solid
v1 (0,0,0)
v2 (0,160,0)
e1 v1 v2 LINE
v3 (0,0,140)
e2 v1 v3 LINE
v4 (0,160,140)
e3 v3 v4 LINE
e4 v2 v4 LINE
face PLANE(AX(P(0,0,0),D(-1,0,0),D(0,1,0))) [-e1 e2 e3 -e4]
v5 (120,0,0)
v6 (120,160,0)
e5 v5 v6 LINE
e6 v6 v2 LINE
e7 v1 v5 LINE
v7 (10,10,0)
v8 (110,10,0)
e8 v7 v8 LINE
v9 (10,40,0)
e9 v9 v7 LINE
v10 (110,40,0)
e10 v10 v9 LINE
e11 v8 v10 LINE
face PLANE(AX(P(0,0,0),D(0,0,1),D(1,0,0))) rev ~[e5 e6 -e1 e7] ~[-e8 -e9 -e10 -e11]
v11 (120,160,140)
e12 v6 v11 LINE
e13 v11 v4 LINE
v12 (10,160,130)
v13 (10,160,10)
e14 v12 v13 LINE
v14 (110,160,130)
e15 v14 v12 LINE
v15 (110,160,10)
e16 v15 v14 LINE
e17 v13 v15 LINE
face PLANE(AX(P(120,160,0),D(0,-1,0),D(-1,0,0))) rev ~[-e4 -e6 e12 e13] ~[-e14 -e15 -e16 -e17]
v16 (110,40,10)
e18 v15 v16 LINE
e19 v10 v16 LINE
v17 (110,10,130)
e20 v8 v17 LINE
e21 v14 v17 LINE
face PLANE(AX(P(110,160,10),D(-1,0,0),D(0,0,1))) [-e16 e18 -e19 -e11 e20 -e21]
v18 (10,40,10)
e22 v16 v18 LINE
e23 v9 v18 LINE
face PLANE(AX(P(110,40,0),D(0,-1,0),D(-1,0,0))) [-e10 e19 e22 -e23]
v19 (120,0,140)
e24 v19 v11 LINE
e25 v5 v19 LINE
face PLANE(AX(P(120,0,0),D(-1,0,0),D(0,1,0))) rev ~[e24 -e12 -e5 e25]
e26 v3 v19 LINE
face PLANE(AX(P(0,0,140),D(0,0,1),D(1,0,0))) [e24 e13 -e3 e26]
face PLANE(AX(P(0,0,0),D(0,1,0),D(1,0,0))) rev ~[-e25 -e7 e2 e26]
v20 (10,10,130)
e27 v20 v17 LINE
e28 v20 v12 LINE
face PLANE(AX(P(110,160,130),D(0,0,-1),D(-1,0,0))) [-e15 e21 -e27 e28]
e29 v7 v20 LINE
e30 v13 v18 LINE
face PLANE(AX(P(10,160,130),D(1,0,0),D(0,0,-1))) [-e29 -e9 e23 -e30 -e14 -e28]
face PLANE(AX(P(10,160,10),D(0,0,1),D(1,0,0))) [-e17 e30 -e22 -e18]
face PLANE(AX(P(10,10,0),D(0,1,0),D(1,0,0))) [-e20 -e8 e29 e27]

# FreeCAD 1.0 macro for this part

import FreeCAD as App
import Part
import Sketcher
Q = App.Units.Quantity


def add_polygon(sketch, points):
    """Adds a closed chain of lines whose ends are joined by coincident constraints."""
    first, n = sketch.GeometryCount, len(points)
    for a, b in zip(points, points[1:] + points[:1]):
        sketch.addGeometry(Part.LineSegment(App.Vector(*a, 0), App.Vector(*b, 0)), False)
    for i in range(n):
        sketch.addConstraint(Sketcher.Constraint("Coincident", first + i, 2, first + (i + 1) % n, 1))

doc = App.newDocument("Part")
body = doc.addObject("PartDesign::Body", "Body")

# Sketch on XY plane
sketch1 = body.newObject("Sketcher::SketchObject", "Sketch")
sketch1.AttachmentSupport = (doc.getObject("XY_Plane"), [""])
sketch1.MapMode = "FlatFace"
add_polygon(sketch1, [(0, 160), (0, 0), (120, 0), (120, 160)])  # lines 0-3
sketch1.addConstraint([
    Sketcher.Constraint("Vertical", 0),
    Sketcher.Constraint("Horizontal", 1),
    Sketcher.Constraint("Vertical", 2),
    Sketcher.Constraint("Horizontal", 3),
    Sketcher.Constraint("Coincident", 0, 2, -1, 1),
    Sketcher.Constraint("DistanceX", 1, 1, 1, 2, Q("120 mm")),
    Sketcher.Constraint("DistanceY", 0, 2, 0, 1, Q("160 mm")),
])
pad1 = body.newObject("PartDesign::Pad", "Pad")
pad1.Profile = sketch1
pad1.Length = 140

# Sketch on XY plane
sketch2 = body.newObject("Sketcher::SketchObject", "Sketch001")
sketch2.AttachmentSupport = (doc.getObject("XY_Plane"), [""])
sketch2.MapMode = "FlatFace"
add_polygon(sketch2, [(110, 10), (10, 10), (10, 40), (110, 40)])  # lines 0-3
sketch2.addConstraint([
    Sketcher.Constraint("Horizontal", 0),
    Sketcher.Constraint("Vertical", 1),
    Sketcher.Constraint("Horizontal", 2),
    Sketcher.Constraint("Vertical", 3),
    Sketcher.Constraint("DistanceY", 1, 1, 1, 2, Q("30 mm")),
    Sketcher.Constraint("DistanceX", -1, 1, 0, 2, Q("10 mm")),
    Sketcher.Constraint("DistanceY", -1, 1, 0, 2, Q("10 mm")),
    Sketcher.Constraint("DistanceX", 0, 2, 0, 1, Q("100 mm")),
])
pocket1 = body.newObject("PartDesign::Pocket", "Pocket")
pocket1.Profile = sketch2
pocket1.Length = 130
pocket1.Reversed = True

# Sketch on XZ plane
sketch3 = body.newObject("Sketcher::SketchObject", "Sketch002")
sketch3.AttachmentSupport = (doc.getObject("XZ_Plane"), [""])
sketch3.MapMode = "FlatFace"
sketch3.AttachmentOffset = App.Placement(App.Vector(0, 0, -160), App.Rotation())
add_polygon(sketch3, [(10, 130), (110, 130), (110, 10), (10, 10)])  # lines 0-3
sketch3.addConstraint([
    Sketcher.Constraint("Horizontal", 0),
    Sketcher.Constraint("Vertical", 1),
    Sketcher.Constraint("Horizontal", 2),
    Sketcher.Constraint("Vertical", 3),
    Sketcher.Constraint("DistanceY", -1, 1, 1, 2, Q("10 mm")),
    Sketcher.Constraint("DistanceX", -1, 1, 2, 2, Q("10 mm")),
    Sketcher.Constraint("DistanceX", 0, 1, 0, 2, Q("100 mm")),
    Sketcher.Constraint("DistanceY", 1, 2, 1, 1, Q("120 mm")),
])
pocket2 = body.newObject("PartDesign::Pocket", "Pocket001")
pocket2.Profile = sketch3
pocket2.Length = 130
pocket2.Reversed = True

doc.recompute()
